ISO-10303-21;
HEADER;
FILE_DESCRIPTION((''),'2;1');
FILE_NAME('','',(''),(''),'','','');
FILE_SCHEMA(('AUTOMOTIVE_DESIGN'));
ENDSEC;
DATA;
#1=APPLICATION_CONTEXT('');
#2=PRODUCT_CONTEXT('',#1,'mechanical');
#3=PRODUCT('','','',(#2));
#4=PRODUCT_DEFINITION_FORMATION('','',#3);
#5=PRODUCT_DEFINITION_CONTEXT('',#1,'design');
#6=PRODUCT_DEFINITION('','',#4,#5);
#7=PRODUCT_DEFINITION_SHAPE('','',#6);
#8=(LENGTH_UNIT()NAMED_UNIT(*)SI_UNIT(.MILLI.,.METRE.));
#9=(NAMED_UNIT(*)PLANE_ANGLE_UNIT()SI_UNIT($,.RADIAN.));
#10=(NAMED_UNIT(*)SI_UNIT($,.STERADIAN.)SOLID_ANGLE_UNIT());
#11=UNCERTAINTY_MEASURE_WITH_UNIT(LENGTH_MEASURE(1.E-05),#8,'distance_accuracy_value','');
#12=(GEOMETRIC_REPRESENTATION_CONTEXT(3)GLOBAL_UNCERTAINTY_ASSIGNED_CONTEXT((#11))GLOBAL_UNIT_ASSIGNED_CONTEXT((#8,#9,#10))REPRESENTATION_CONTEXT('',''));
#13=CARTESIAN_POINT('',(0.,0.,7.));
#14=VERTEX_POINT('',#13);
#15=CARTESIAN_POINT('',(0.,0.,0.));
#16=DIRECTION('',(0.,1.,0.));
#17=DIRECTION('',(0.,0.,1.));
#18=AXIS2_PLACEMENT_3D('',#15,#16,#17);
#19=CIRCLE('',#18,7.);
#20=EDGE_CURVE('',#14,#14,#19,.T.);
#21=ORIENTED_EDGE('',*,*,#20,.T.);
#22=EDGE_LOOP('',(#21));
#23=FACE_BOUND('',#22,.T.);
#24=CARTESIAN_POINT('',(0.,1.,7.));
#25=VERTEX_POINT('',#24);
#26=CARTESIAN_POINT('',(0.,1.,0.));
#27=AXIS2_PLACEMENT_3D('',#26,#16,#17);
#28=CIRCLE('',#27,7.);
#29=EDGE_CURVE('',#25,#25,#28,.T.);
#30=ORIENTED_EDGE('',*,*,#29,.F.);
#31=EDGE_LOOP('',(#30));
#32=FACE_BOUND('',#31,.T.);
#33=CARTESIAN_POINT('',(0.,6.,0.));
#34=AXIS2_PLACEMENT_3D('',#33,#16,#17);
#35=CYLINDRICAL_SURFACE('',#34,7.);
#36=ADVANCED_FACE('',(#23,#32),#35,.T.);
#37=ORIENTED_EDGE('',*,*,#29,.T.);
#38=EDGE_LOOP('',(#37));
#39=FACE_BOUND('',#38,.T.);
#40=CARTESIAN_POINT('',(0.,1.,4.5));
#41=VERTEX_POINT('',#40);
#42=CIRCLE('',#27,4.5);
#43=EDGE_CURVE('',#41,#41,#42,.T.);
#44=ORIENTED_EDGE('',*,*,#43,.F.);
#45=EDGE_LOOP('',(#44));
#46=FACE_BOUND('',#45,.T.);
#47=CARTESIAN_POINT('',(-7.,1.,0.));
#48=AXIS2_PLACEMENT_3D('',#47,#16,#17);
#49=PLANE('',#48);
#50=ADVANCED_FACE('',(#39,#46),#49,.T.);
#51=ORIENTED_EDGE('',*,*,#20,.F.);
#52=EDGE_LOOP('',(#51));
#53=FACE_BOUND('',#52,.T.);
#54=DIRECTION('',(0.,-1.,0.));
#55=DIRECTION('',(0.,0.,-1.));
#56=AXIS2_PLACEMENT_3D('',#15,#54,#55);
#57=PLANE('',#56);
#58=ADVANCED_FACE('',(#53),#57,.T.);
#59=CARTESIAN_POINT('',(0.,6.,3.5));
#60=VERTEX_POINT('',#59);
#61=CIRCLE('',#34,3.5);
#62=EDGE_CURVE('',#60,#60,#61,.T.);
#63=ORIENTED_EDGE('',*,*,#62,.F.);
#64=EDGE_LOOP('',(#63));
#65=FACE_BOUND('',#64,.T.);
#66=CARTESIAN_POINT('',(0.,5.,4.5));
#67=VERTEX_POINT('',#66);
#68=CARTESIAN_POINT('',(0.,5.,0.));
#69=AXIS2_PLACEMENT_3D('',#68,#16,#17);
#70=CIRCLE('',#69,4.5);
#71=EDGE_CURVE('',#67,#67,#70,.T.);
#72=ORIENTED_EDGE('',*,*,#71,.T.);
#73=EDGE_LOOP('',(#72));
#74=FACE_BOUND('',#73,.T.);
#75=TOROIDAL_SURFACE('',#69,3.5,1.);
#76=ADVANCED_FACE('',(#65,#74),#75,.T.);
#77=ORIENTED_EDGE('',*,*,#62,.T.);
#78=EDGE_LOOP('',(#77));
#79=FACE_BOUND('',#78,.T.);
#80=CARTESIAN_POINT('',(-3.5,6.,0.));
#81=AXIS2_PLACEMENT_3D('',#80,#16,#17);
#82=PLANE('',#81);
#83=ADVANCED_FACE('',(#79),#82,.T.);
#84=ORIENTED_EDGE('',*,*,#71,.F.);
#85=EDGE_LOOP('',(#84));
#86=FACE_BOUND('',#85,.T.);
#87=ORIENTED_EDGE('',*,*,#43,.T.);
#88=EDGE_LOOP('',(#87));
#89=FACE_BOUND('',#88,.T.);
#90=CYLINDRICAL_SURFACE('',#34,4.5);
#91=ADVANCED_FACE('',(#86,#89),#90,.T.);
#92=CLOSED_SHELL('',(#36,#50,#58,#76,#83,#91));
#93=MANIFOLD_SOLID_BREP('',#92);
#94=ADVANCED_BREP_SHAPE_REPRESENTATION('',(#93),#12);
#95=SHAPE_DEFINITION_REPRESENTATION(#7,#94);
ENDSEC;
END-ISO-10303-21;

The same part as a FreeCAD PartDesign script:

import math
import FreeCAD as App
import Part
import Sketcher

V = App.Vector

doc = App.newDocument("Part")
body = doc.addObject("PartDesign::Body", "Body")

# Sketch on XY plane
sketch1 = doc.addObject("Sketcher::SketchObject", "Sketch")
body.addObject(sketch1)
sketch1.AttachmentSupport = (doc.XY_Plane, [""])
sketch1.MapMode = "FlatFace"
sketch1.addGeometry(Part.LineSegment(V(0, 0, 0), V(0, 6, 0)), False)
sketch1.addGeometry(Part.LineSegment(V(0, 6, 0), V(-3.5, 6, 0)), False)
sketch1.addGeometry(Part.ArcOfCircle(Part.Circle(V(-3.5, 5, 0), V(0, 0, 1), 1), math.radians(90), math.radians(180)), False)
sketch1.addGeometry(Part.LineSegment(V(-4.5, 5, 0), V(-4.5, 1, 0)), False)
sketch1.addGeometry(Part.LineSegment(V(-4.5, 1, 0), V(-7, 1, 0)), False)
sketch1.addGeometry(Part.LineSegment(V(-7, 1, 0), V(-7, 0, 0)), False)
sketch1.addGeometry(Part.LineSegment(V(-7, 0, 0), V(0, 0, 0)), False)
sketch1.addConstraint(Sketcher.Constraint("Coincident", 0, 2, 1, 1))
sketch1.addConstraint(Sketcher.Constraint("Tangent", 1, 2, 2, 1))
sketch1.addConstraint(Sketcher.Constraint("Tangent", 2, 2, 3, 1))
sketch1.addConstraint(Sketcher.Constraint("Coincident", 3, 2, 4, 1))
sketch1.addConstraint(Sketcher.Constraint("Coincident", 4, 2, 5, 1))
sketch1.addConstraint(Sketcher.Constraint("Coincident", 5, 2, 6, 1))
sketch1.addConstraint(Sketcher.Constraint("Coincident", 6, 2, 0, 1))
sketch1.addConstraint(Sketcher.Constraint("Vertical", 0))
sketch1.addConstraint(Sketcher.Constraint("Horizontal", 1))
sketch1.addConstraint(Sketcher.Constraint("Vertical", 3))
sketch1.addConstraint(Sketcher.Constraint("Horizontal", 4))
sketch1.addConstraint(Sketcher.Constraint("Vertical", 5))
sketch1.addConstraint(Sketcher.Constraint("Horizontal", 6))
sketch1.addConstraint(Sketcher.Constraint("Coincident", 6, 2, -1, 1))
sketch1.addConstraint(Sketcher.Constraint("Radius", 2, 1.0))
sketch1.addConstraint(Sketcher.Constraint("DistanceX", 6, 1, 6, 2, 7.0))
sketch1.addConstraint(Sketcher.Constraint("DistanceY", 0, 1, 0, 2, 6.0))
sketch1.addConstraint(Sketcher.Constraint("DistanceY", 3, 2, 3, 1, 4.0))
sketch1.addConstraint(Sketcher.Constraint("DistanceX", 1, 2, 1, 1, 3.5))
revolution = doc.addObject("PartDesign::Revolution", "Revolution")
body.addObject(revolution)
revolution.Profile = sketch1
revolution.ReferenceAxis = (sketch1, ["V_Axis"])
revolution.Angle = 360

doc.recompute()
